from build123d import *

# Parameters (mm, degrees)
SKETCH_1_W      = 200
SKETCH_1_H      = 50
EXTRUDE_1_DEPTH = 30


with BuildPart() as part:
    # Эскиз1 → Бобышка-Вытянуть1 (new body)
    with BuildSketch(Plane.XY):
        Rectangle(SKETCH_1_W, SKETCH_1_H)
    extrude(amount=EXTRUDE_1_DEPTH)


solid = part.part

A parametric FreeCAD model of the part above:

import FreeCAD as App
import Part
import Sketcher
from FreeCAD import Vector


def add_polygon(sketch, points):
    """Adds a closed chain of lines whose ends are joined by coincident constraints."""
    first, n = sketch.GeometryCount, len(points)
    for a, b in zip(points, points[1:] + points[:1]):
        sketch.addGeometry(Part.LineSegment(App.Vector(*a, 0), App.Vector(*b, 0)), False)
    for i in range(n):
        sketch.addConstraint(Sketcher.Constraint("Coincident", first + i, 2, first + (i + 1) % n, 1))

doc = App.newDocument("Part")
body = doc.addObject("PartDesign::Body", "Body")

# Sketch on XY plane
sketch1 = body.newObject("Sketcher::SketchObject", "Sketch")
sketch1.AttachmentSupport = (doc.getObject("XY_Plane"), [""])
sketch1.MapMode = "FlatFace"
add_polygon(sketch1, [(-100, 25), (-100, -25), (100, -25), (100, 25)])  # lines 0-3
sketch1.addConstraint([
    Sketcher.Constraint("Vertical", 0),
    Sketcher.Constraint("Horizontal", 1),
    Sketcher.Constraint("Vertical", 2),
    Sketcher.Constraint("Horizontal", 3),
    Sketcher.Constraint("Symmetric", 0, 2, 2, 2, -1, 1),
    Sketcher.Constraint("DistanceX", 1, 1, 1, 2, 200.0),
    Sketcher.Constraint("DistanceY", 0, 2, 0, 1, 50.0),
])
pad1 = body.newObject("PartDesign::Pad", "Pad")
pad1.Profile = sketch1
pad1.Length = 30

doc.recompute()
